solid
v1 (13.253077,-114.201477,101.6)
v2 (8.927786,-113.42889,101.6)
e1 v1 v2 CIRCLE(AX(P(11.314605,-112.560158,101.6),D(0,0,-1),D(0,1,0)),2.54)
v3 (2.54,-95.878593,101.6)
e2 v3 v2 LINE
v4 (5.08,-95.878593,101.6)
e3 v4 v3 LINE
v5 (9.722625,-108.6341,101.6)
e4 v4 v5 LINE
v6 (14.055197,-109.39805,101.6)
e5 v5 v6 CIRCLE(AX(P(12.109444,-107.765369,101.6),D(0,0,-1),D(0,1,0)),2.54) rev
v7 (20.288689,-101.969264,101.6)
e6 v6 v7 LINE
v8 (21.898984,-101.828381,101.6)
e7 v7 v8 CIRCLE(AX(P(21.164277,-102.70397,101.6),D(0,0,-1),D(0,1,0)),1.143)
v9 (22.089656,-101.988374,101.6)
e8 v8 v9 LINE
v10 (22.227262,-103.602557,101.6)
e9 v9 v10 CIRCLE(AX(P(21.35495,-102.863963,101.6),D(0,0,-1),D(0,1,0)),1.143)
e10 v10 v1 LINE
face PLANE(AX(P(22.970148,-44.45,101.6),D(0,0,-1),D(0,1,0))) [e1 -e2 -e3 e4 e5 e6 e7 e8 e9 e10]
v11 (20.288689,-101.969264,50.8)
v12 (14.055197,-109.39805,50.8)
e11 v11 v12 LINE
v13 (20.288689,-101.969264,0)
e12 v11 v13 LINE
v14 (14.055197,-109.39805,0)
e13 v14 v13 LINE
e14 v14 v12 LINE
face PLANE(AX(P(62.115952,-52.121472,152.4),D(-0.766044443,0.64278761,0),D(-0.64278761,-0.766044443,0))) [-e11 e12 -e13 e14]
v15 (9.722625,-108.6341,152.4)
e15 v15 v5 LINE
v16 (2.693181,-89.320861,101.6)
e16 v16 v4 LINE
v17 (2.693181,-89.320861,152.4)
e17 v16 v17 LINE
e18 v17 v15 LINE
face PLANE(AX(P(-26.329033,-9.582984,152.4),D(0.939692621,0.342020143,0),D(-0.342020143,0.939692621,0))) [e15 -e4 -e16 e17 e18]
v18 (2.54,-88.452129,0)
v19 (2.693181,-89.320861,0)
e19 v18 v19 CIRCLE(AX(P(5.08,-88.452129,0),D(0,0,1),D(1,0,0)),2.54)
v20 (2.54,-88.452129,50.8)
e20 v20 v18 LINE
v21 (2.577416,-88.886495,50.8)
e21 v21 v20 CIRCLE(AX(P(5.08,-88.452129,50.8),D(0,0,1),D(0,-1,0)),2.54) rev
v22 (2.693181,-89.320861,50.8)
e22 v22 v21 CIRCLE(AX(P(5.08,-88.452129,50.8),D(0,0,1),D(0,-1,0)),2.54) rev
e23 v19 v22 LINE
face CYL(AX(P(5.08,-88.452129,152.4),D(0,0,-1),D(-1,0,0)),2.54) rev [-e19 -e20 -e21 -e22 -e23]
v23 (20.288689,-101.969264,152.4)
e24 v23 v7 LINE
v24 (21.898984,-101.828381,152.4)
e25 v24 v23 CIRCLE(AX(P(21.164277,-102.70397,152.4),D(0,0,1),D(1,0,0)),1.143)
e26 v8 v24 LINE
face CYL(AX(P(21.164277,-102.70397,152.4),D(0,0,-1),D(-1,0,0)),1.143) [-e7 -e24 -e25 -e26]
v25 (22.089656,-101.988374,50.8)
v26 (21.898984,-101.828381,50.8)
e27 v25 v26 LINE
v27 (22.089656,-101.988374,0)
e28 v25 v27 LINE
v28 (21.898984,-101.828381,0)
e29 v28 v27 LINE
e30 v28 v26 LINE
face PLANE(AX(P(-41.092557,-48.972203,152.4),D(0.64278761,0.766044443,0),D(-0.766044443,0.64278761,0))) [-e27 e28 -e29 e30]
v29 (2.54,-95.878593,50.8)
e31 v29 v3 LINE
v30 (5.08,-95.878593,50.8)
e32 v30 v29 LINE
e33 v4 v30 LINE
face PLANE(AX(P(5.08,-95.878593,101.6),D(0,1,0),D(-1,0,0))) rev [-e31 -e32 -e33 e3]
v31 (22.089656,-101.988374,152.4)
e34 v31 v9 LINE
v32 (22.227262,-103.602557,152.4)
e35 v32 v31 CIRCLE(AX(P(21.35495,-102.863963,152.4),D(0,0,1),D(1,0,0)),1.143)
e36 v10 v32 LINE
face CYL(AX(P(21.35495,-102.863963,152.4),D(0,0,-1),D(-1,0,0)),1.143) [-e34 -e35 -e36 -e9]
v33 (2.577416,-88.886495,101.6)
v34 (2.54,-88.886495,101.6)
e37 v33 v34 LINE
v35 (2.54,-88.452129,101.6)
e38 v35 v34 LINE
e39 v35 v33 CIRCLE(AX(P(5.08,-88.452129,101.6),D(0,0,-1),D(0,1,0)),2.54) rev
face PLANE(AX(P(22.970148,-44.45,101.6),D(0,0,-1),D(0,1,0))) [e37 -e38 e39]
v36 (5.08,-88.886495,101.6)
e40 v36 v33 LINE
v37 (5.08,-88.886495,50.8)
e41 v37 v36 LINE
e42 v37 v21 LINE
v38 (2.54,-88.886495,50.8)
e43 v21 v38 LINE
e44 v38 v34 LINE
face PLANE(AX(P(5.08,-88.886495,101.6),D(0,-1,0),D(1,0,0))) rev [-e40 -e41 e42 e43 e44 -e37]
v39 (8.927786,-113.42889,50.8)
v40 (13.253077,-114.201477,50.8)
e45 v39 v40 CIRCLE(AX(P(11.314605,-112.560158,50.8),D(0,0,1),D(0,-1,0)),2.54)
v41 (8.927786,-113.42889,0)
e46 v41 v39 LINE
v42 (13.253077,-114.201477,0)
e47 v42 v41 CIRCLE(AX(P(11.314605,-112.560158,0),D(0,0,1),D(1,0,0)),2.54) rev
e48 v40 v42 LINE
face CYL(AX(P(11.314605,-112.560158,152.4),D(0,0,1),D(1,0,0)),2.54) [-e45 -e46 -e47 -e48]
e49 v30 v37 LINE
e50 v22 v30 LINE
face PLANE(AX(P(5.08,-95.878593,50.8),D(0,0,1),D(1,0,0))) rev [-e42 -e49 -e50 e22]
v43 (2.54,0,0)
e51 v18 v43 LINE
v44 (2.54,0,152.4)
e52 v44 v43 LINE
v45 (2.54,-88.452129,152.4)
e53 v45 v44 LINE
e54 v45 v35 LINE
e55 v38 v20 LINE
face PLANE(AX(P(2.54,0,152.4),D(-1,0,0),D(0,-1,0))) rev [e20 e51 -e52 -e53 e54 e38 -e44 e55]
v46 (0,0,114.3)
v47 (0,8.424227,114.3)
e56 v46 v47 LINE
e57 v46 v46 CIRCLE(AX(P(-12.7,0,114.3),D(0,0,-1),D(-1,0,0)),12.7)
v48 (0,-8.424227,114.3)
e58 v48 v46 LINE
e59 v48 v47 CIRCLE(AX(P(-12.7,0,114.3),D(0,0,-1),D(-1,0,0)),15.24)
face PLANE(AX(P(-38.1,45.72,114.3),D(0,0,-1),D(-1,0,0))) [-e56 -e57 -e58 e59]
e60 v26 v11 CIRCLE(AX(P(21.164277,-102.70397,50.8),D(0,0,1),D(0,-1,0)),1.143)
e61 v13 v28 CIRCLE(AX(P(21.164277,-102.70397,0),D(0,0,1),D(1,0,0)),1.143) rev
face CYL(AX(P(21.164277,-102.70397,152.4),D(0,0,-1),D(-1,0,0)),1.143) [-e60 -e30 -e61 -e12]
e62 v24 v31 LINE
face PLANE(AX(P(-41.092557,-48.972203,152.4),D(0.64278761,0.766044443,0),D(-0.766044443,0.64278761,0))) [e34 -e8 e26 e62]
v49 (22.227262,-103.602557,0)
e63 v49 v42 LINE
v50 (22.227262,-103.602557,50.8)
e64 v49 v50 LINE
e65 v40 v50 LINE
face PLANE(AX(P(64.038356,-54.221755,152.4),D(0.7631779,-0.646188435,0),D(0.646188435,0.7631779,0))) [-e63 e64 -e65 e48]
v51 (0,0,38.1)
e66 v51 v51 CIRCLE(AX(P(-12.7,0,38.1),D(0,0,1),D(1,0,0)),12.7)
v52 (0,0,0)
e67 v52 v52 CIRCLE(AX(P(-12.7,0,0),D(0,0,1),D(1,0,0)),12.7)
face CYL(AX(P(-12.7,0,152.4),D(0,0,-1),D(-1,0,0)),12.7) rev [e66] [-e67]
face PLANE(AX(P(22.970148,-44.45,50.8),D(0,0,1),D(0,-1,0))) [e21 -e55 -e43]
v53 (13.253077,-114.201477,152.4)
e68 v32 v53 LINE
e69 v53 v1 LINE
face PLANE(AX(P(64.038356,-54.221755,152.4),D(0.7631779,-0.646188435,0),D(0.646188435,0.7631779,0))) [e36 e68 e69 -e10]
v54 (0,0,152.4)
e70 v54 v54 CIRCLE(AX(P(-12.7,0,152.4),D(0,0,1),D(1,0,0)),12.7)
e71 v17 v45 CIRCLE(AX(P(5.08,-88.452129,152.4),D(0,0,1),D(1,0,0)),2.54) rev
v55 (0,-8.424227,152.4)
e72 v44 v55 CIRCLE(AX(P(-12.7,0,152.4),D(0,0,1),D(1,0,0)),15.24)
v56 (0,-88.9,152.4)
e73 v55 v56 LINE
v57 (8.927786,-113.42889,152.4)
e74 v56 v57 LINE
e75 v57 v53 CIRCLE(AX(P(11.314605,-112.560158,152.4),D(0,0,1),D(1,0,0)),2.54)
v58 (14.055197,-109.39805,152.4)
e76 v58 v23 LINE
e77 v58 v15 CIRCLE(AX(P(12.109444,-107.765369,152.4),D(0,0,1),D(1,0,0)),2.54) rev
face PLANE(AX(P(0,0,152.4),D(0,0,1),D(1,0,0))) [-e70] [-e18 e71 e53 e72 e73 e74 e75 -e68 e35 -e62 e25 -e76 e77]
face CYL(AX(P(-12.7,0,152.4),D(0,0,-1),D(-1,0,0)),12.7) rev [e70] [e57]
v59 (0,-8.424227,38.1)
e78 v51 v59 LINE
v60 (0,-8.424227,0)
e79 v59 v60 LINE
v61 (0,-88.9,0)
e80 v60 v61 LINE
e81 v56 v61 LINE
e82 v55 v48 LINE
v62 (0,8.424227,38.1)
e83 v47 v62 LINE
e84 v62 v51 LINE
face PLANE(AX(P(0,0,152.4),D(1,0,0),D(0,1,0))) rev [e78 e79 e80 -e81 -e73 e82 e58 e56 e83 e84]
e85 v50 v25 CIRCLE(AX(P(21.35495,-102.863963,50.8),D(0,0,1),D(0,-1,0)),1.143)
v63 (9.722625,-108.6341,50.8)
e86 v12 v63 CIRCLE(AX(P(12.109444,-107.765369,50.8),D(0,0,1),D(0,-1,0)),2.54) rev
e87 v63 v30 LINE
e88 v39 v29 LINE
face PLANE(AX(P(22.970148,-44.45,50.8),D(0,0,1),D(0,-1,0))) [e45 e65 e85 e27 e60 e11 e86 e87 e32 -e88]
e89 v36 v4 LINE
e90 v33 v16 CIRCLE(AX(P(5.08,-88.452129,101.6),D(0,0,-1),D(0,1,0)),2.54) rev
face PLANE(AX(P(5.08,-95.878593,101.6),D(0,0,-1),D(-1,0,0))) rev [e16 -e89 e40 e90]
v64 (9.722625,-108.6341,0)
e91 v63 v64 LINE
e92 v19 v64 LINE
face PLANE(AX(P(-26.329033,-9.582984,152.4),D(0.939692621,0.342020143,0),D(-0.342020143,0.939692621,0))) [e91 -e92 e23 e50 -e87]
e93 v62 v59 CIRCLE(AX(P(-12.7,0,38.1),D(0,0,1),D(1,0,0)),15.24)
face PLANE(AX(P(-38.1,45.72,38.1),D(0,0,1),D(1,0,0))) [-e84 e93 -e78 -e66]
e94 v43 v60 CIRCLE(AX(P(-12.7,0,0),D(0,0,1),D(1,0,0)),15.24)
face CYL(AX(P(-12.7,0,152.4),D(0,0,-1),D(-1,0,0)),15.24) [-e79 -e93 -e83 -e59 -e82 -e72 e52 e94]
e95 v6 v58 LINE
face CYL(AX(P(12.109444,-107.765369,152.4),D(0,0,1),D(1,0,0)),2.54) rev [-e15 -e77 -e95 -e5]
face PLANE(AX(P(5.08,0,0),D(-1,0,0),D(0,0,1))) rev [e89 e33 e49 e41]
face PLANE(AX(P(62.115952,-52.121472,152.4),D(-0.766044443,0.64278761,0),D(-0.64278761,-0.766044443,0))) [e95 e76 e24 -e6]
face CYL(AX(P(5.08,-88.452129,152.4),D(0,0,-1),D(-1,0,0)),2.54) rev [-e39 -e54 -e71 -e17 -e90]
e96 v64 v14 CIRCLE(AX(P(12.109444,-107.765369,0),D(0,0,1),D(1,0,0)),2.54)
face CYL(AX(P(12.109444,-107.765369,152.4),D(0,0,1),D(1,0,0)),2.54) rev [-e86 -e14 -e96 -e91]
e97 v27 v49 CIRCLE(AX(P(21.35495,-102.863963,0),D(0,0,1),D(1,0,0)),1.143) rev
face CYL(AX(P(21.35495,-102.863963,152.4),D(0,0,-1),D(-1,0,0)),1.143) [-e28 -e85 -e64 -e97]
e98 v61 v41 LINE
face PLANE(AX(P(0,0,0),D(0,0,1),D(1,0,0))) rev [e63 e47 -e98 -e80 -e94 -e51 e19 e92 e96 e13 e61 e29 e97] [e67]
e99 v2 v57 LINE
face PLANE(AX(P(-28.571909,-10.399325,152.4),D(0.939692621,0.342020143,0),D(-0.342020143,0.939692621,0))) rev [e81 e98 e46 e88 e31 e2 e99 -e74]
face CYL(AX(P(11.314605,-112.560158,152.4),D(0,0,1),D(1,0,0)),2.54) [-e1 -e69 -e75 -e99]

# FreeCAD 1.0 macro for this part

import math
import FreeCAD as App
import Part
import Sketcher
Q = App.Units.Quantity


def edges_at(feature, points):
    """Names of the edges that pass closest to the given points."""
    edges = feature.Shape.Edges
    near = lambda p: min(range(len(edges)), key=lambda i: edges[i].distToShape(Part.Vertex(*p))[0])
    return sorted({f"Edge{near(p) + 1}" for p in points})


def add_polygon(sketch, points):
    """Adds a closed chain of lines whose ends are joined by coincident constraints."""
    first, n = sketch.GeometryCount, len(points)
    for a, b in zip(points, points[1:] + points[:1]):
        sketch.addGeometry(Part.LineSegment(App.Vector(*a, 0), App.Vector(*b, 0)), False)
    for i in range(n):
        sketch.addConstraint(Sketcher.Constraint("Coincident", first + i, 2, first + (i + 1) % n, 1))

doc = App.newDocument("Part")
body = doc.addObject("PartDesign::Body", "Body")

sketch1 = doc.addObject("Sketcher::SketchObject", "Sketch")
body.addObject(sketch1)
sketch1.AttachmentSupport = (doc.XY_Plane, [""])
sketch1.MapMode = "FlatFace"
sketch1.addGeometry(Part.ArcOfCircle(Part.Circle(App.Vector(-12.7, 0, 0), App.Vector(0, 0, 1), 15.2), math.radians(0), math.radians(326)), False)
sketch1.addGeometry(Part.LineSegment(App.Vector(0, -8.4, 0), App.Vector(0, -88.9, 0)), False)
sketch1.addGeometry(Part.LineSegment(App.Vector(0, -88.9, 0), App.Vector(10.4, -117.5, 0)), False)
sketch1.addGeometry(Part.LineSegment(App.Vector(10.4, -117.5, 0), App.Vector(23, -102.7, 0)), False)
sketch1.addGeometry(Part.LineSegment(App.Vector(23, -102.7, 0), App.Vector(21, -101.1, 0)), False)
sketch1.addGeometry(Part.LineSegment(App.Vector(21, -101.1, 0), App.Vector(11.2, -112.8, 0)), False)
sketch1.addGeometry(Part.LineSegment(App.Vector(11.2, -112.8, 0), App.Vector(2.5, -88.9, 0)), False)
sketch1.addGeometry(Part.LineSegment(App.Vector(2.5, -88.9, 0), App.Vector(2.5, 0, 0)), False)
sketch1.addGeometry(Part.Circle(App.Vector(-12.7, 0, 0), App.Vector(0, 0, 1), 12.7), False)
sketch1.addConstraint(Sketcher.Constraint("Coincident", 0, 2, 1, 1))
sketch1.addConstraint(Sketcher.Constraint("Coincident", 1, 2, 2, 1))
sketch1.addConstraint(Sketcher.Constraint("Coincident", 2, 2, 3, 1))
sketch1.addConstraint(Sketcher.Constraint("Coincident", 3, 2, 4, 1))
sketch1.addConstraint(Sketcher.Constraint("Coincident", 4, 2, 5, 1))
sketch1.addConstraint(Sketcher.Constraint("Coincident", 5, 2, 6, 1))
sketch1.addConstraint(Sketcher.Constraint("Coincident", 6, 2, 7, 1))
sketch1.addConstraint(Sketcher.Constraint("Tangent", 7, 2, 0, 1))
sketch1.addConstraint(Sketcher.Constraint("Vertical", 1))
sketch1.addConstraint(Sketcher.Constraint("Vertical", 7))
sketch1.addConstraint(Sketcher.Constraint("Coincident", 8, 3, 0, 3))
sketch1.addConstraint(Sketcher.Constraint("PointOnObject", 0, 3, -1))
sketch1.addConstraint(Sketcher.Constraint("PointOnObject", 0, 2, -2))
sketch1.addConstraint(Sketcher.Constraint("Perpendicular", 4, 5))
sketch1.addConstraint(Sketcher.Constraint("Parallel", 2, 6))
sketch1.addConstraint(Sketcher.Constraint("Horizontal", 1, 2, 6, 2))
sketch1.addConstraint(Sketcher.Constraint("Diameter", 8, Q("1 in")))
sketch1.addConstraint(Sketcher.Constraint("Radius", 0, Q("0.6 in")))
sketch1.addConstraint(Sketcher.Constraint("Distance", 6, Q("1 in")))
sketch1.addConstraint(Sketcher.Constraint("DistanceY", 7, 1, 7, 2, Q("3.5 in")))
sketch1.addConstraint(Sketcher.Constraint("Angle", 2, Q("-70 deg")))
sketch1.addConstraint(Sketcher.Constraint("Angle", 4, Q("140 deg")))
sketch1.addConstraint(Sketcher.Constraint("Distance", 2, Q("1.2 in")))
sketch1.addConstraint(Sketcher.Constraint("Distance", 4, Q("0.1 in")))
sketch1.addConstraint(Sketcher.Constraint("Distance", 5, Q("0.6 in")))
sketch1.addConstraint(Sketcher.Constraint("DistanceX", 0, 3, -1, 1, Q("0.5 in")))
pad1 = doc.addObject("PartDesign::Pad", "Pad")
body.addObject(pad1)
pad1.Profile = sketch1
pad1.Length = Q("6 in")

sketch2 = doc.addObject("Sketcher::SketchObject", "Sketch001")
body.addObject(sketch2)
sketch2.AttachmentSupport = (doc.YZ_Plane, [""])
sketch2.MapMode = "FlatFace"
sketch2.AttachmentOffset = App.Placement(App.Vector(0, 0, 0.1 * 25.4), App.Rotation())
add_polygon(sketch2, [(-44, 102), (-136, 102), (-136, 51), (-44, 51)])
sketch2.addConstraint(Sketcher.Constraint("Horizontal", 0))
sketch2.addConstraint(Sketcher.Constraint("Vertical", 1))
sketch2.addConstraint(Sketcher.Constraint("Horizontal", 2))
sketch2.addConstraint(Sketcher.Constraint("Vertical", 3))
sketch2.addConstraint(Sketcher.Constraint("DistanceY", 1, 2, 1, 1, Q("2 in")))
sketch2.addConstraint(Sketcher.Constraint("DistanceY", -1, 1, 0, 2, Q("4 in")))
sketch2.addConstraint(Sketcher.Constraint("DistanceX", 2, 2, -1, 1, Q("1.75 in")))
sketch2.addConstraint(Sketcher.Constraint("DistanceX", 0, 2, 0, 1, Q("91.596569 mm")))
pocket1 = doc.addObject("PartDesign::Pocket", "Pocket")
body.addObject(pocket1)
pocket1.Profile = sketch2
pocket1.Length = 20.429148
pocket1.Reversed = True
doc.recompute()

fillet = doc.addObject("PartDesign::Fillet", "Fillet")
body.addObject(fillet)
fillet.Base = (pocket1, edges_at(pocket1, [
    (2.54, -88.9, 127),
    (11.227, -112.768, 127),
    (10.425, -117.542, 127),
    (2.54, -88.9, 25.4),
    (11.227, -112.768, 25.4),
    (10.425, -117.542, 25.4),
]))
fillet.Radius = Q("0.1 in")
doc.recompute()

fillet2 = doc.addObject("PartDesign::Fillet", "Fillet001")
body.addObject(fillet2)
fillet2.Base = (fillet, edges_at(fillet, [
    (21.023, -101.094, 127),
    (22.969, -102.726, 127),
    (21.023, -101.094, 25.4),
    (22.969, -102.726, 25.4),
]))
fillet2.Radius = Q("0.045 in")

sketch3 = doc.addObject("Sketcher::SketchObject", "Sketch002")
body.addObject(sketch3)
sketch3.AttachmentSupport = (doc.YZ_Plane, [""])
sketch3.MapMode = "FlatFace"
add_polygon(sketch3, [(46, 38), (-15, 38), (-15, 114), (46, 114)])
sketch3.addConstraint(Sketcher.Constraint("Horizontal", 0))
sketch3.addConstraint(Sketcher.Constraint("Vertical", 1))
sketch3.addConstraint(Sketcher.Constraint("Horizontal", 2))
sketch3.addConstraint(Sketcher.Constraint("Vertical", 3))
sketch3.addConstraint(Sketcher.Constraint("DistanceY", 1, 1, 1, 2, Q("3 in")))
sketch3.addConstraint(Sketcher.Constraint("DistanceX", 0, 2, 0, 1, Q("2.4 in")))
sketch3.addConstraint(Sketcher.Constraint("DistanceX", 0, 2, -1, 1, Q("0.6 in")))
sketch3.addConstraint(Sketcher.Constraint("DistanceY", -1, 1, 0, 2, Q("1.5 in")))
pocket2 = doc.addObject("PartDesign::Pocket", "Pocket001")
body.addObject(pocket2)
pocket2.Profile = sketch3
pocket2.Length = Q("1.5 in")

sketch4 = doc.addObject("Sketcher::SketchObject", "Sketch003")
body.addObject(sketch4)
sketch4.AttachmentSupport = (doc.YZ_Plane, [""])
sketch4.MapMode = "FlatFace"
sketch4.AttachmentOffset = App.Placement(App.Vector(0, 0, 0.1 * 25.4), App.Rotation())
add_polygon(sketch4, [(-89, 102), (-96, 102), (-96, 51), (-89, 51)])
sketch4.addConstraint(Sketcher.Constraint("Horizontal", 0))
sketch4.addConstraint(Sketcher.Constraint("Vertical", 1))
sketch4.addConstraint(Sketcher.Constraint("Horizontal", 2))
sketch4.addConstraint(Sketcher.Constraint("Vertical", 3))
sketch4.addConstraint(Sketcher.Constraint("DistanceY", 1, 2, 1, 1, Q("2 in")))
sketch4.addConstraint(Sketcher.Constraint("DistanceY", -1, 1, 0, 2, Q("4 in")))
sketch4.addConstraint(Sketcher.Constraint("DistanceX", 0, 2, 0, 1, Q("6.992098 mm")))
sketch4.addConstraint(Sketcher.Constraint("DistanceX", 0, 2, -1, 1, Q("95.878593 mm")))
pad2 = doc.addObject("PartDesign::Pad", "Pad001")
body.addObject(pad2)
pad2.Profile = sketch4
pad2.Length = Q("0.1 in")

doc.recompute()
